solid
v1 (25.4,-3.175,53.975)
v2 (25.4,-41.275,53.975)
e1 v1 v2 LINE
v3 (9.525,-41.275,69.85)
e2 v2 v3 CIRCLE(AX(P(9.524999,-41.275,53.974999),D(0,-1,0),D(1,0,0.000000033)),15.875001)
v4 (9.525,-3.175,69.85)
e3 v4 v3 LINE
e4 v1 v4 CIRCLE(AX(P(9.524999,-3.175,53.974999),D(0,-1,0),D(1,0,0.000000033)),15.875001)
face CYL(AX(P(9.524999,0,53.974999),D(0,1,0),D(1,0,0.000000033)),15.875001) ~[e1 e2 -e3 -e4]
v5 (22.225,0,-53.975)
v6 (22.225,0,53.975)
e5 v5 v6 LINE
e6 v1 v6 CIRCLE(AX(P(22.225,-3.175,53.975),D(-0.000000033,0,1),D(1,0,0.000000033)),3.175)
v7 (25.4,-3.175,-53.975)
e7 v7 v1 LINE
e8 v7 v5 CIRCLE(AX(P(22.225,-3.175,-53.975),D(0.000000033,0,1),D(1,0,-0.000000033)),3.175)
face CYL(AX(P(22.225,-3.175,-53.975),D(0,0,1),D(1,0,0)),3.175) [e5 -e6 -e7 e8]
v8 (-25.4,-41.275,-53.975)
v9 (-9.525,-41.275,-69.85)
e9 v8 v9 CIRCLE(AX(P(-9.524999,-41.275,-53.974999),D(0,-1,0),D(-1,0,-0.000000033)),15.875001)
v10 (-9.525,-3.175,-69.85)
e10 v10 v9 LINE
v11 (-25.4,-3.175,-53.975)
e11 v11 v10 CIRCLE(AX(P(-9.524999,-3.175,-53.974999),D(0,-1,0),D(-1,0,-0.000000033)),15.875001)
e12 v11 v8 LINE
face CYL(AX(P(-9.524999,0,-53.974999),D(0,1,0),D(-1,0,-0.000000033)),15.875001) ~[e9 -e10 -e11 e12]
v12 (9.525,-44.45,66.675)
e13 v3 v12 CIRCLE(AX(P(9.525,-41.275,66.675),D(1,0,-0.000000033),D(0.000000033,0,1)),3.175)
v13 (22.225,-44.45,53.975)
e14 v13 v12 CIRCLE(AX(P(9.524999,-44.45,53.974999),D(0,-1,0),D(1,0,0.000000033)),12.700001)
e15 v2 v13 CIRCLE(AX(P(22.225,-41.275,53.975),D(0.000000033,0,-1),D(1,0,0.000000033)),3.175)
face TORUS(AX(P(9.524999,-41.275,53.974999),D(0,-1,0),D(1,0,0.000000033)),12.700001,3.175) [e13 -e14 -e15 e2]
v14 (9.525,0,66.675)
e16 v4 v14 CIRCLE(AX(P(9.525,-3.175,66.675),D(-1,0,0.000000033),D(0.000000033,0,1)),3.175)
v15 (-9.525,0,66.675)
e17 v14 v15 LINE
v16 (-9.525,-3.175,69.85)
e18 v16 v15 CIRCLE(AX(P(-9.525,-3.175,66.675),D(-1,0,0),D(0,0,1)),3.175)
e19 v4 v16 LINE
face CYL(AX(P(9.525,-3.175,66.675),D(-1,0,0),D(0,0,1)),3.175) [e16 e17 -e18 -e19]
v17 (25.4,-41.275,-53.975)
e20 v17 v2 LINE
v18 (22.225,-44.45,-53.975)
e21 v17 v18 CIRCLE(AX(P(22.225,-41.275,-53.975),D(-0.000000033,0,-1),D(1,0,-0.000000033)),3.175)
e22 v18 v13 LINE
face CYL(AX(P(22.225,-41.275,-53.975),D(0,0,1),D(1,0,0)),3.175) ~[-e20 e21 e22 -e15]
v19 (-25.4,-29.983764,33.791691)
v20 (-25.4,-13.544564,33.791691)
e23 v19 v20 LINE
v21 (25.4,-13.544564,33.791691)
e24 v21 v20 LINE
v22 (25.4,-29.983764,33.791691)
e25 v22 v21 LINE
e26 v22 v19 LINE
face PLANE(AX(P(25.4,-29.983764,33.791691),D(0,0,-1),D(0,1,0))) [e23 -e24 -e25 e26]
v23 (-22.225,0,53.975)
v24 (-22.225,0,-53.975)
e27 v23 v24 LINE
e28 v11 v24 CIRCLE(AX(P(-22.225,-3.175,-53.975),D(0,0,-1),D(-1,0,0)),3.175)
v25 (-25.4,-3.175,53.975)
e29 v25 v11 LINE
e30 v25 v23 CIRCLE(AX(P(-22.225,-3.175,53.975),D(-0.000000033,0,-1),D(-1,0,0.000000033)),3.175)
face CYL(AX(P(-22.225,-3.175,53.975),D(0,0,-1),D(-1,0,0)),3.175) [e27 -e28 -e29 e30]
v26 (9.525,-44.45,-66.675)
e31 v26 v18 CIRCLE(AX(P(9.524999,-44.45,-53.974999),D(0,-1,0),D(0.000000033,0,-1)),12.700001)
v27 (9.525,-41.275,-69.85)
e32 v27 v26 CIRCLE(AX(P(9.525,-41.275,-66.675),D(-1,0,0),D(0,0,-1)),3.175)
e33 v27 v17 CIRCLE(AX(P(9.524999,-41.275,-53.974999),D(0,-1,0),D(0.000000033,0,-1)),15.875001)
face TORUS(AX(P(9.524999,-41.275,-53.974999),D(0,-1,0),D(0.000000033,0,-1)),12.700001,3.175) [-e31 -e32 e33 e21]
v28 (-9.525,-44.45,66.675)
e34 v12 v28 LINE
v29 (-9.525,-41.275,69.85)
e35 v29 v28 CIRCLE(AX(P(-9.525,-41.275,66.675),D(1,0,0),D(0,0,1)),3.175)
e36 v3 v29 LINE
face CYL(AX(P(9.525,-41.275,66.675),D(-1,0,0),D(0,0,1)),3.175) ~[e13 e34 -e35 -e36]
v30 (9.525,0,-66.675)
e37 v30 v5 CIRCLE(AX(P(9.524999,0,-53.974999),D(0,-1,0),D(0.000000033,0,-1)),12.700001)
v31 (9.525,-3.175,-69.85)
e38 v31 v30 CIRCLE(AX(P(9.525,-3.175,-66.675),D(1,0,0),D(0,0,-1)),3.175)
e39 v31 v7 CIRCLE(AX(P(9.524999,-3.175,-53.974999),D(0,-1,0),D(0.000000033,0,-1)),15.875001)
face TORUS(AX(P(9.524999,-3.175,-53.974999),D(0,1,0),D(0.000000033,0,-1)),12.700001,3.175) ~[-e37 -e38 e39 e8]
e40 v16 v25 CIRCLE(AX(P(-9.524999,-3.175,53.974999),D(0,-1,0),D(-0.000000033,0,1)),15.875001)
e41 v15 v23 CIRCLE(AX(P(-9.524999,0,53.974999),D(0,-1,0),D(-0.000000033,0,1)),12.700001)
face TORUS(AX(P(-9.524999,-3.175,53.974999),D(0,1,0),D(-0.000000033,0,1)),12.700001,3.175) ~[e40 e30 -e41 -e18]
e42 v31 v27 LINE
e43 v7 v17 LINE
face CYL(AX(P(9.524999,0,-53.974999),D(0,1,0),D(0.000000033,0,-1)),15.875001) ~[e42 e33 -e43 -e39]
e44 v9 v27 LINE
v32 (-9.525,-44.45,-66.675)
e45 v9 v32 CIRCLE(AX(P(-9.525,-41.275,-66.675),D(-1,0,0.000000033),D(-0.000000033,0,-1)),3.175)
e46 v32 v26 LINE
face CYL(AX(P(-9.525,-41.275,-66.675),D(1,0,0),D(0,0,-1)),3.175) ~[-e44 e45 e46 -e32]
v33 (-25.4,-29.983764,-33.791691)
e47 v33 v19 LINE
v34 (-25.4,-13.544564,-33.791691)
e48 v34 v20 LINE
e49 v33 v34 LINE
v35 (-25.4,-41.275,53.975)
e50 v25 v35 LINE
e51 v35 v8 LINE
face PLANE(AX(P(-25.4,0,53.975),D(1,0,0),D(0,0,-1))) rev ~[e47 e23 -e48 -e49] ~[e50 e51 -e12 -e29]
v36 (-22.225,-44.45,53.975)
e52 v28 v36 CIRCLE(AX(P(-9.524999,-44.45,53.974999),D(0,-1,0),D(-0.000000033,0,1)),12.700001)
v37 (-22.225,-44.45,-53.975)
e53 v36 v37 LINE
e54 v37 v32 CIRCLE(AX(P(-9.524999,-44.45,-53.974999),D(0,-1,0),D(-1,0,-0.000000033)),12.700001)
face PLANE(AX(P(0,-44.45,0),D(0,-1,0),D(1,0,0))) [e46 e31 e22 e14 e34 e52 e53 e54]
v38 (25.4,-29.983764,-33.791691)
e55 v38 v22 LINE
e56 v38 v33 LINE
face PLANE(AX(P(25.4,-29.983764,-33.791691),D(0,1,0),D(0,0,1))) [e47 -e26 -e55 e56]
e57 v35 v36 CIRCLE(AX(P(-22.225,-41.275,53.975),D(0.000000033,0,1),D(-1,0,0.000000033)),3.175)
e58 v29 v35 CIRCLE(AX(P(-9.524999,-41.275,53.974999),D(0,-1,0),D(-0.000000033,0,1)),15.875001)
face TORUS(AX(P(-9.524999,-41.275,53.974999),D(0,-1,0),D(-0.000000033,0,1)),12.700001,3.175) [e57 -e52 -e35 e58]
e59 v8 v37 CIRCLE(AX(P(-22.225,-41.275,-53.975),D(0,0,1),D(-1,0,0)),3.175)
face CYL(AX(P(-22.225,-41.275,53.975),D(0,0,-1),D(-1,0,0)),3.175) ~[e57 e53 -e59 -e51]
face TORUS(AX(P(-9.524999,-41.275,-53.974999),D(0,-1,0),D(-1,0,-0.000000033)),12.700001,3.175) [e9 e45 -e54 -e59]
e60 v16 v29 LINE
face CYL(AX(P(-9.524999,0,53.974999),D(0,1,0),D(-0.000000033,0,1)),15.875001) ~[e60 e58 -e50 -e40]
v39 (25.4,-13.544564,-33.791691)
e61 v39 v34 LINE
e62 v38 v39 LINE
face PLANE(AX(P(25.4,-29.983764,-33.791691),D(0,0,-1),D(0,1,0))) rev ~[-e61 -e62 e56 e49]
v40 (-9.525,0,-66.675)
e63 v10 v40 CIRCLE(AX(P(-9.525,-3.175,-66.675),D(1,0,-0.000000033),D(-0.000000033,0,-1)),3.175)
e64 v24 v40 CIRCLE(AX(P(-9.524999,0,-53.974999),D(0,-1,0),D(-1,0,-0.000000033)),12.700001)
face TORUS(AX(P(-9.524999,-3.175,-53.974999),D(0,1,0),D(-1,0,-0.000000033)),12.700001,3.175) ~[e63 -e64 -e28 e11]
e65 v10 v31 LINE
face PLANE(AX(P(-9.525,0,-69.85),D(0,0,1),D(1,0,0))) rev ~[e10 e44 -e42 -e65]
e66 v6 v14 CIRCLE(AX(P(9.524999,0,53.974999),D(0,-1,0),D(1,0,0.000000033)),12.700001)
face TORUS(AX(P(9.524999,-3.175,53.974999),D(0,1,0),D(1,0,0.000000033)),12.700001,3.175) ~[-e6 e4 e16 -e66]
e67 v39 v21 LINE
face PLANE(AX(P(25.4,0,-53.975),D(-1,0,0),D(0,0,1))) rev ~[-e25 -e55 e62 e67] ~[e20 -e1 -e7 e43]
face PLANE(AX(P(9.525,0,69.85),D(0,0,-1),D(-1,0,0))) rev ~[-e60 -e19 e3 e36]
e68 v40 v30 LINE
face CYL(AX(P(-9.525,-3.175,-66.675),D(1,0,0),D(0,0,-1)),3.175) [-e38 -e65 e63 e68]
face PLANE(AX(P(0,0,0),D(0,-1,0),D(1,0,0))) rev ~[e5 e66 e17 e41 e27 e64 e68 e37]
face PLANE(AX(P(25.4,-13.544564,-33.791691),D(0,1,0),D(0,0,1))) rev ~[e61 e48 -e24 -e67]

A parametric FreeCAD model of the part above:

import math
import FreeCAD as App
import Part
import Sketcher
from FreeCAD import Vector
Q = App.Units.Quantity


def edges_at(feature, points):
    """Names of the edges that pass closest to the given points."""
    edges = feature.Shape.Edges
    near = lambda p: min(range(len(edges)), key=lambda i: edges[i].distToShape(Part.Vertex(*p))[0])
    return sorted({f"Edge{near(p) + 1}" for p in points})

doc = App.newDocument("Part")
params = doc.addObject("Spreadsheet::Sheet", "Params")
for row, (alias, value) in enumerate([
    ("sketch1_radius", "0.625 in"),
    ("sketch1_height", "4.25 in"),
    ("pad1_length", "1.75 in"),
    ("fillet_radius", "0.125 in"),
], start=1):
    params.set(f"A{row}", alias)
    params.set(f"B{row}", "=" + value)
    params.setAlias(f"B{row}", alias)

body = doc.addObject("PartDesign::Body", "Body")

# Sketch on XZ plane
sketch1 = body.newObject("Sketcher::SketchObject", "Sketch")
sketch1.AttachmentSupport = (doc.getObject("XZ_Plane"), [""])
sketch1.MapMode = "FlatFace"
sketch1.addGeometry(Part.ArcOfCircle(Part.Circle(Vector(10, 54, 0), Vector(0, 0, 1), 16), math.radians(0), math.radians(90)), False)
sketch1.addGeometry(Part.LineSegment(Vector(10, 70, 0), Vector(-10, 70, 0)), False)
sketch1.addGeometry(Part.ArcOfCircle(Part.Circle(Vector(-10, 54, 0), Vector(0, 0, 1), 16), math.radians(90), math.radians(180)), False)
sketch1.addGeometry(Part.LineSegment(Vector(-25, 54, 0), Vector(-25, -54, 0)), False)
sketch1.addGeometry(Part.ArcOfCircle(Part.Circle(Vector(-10, -54, 0), Vector(0, 0, 1), 16), math.radians(-180), math.radians(-90)), False)
sketch1.addGeometry(Part.LineSegment(Vector(-10, -70, 0), Vector(10, -70, 0)), False)
sketch1.addGeometry(Part.ArcOfCircle(Part.Circle(Vector(10, -54, 0), Vector(0, 0, 1), 16), math.radians(-90), math.radians(0)), False)
sketch1.addGeometry(Part.LineSegment(Vector(25, -54, 0), Vector(25, 54, 0)), False)
sketch1.addConstraint(Sketcher.Constraint("Tangent", 0, 2, 1, 1))
sketch1.addConstraint(Sketcher.Constraint("Tangent", 1, 2, 2, 1))
sketch1.addConstraint(Sketcher.Constraint("Tangent", 2, 2, 3, 1))
sketch1.addConstraint(Sketcher.Constraint("Tangent", 3, 2, 4, 1))
sketch1.addConstraint(Sketcher.Constraint("Tangent", 4, 2, 5, 1))
sketch1.addConstraint(Sketcher.Constraint("Tangent", 5, 2, 6, 1))
sketch1.addConstraint(Sketcher.Constraint("Tangent", 6, 2, 7, 1))
sketch1.addConstraint(Sketcher.Constraint("Tangent", 7, 2, 0, 1))
sketch1.addConstraint(Sketcher.Constraint("Horizontal", 1))
sketch1.addConstraint(Sketcher.Constraint("Vertical", 3))
sketch1.addConstraint(Sketcher.Constraint("Horizontal", 5))
sketch1.addConstraint(Sketcher.Constraint("Vertical", 7))
sketch1.addConstraint(Sketcher.Constraint("Equal", 0, 2))
sketch1.addConstraint(Sketcher.Constraint("Equal", 2, 4))
sketch1.addConstraint(Sketcher.Constraint("Equal", 4, 6))
sketch1.addConstraint(Sketcher.Constraint("Symmetric", 0, 3, 4, 3, -1, 1))
sketch1.addConstraint(Sketcher.Constraint("DistanceX", 2, 2, -1, 1, Q("1 in")))
sketch1.addConstraint(Sketcher.Constraint("Radius", 0, Q("0.625 in")))
sketch1.addConstraint(Sketcher.Constraint("DistanceY", 3, 2, 3, 1, Q("4.25 in")))
sketch1.setExpression("Constraints[17]", "Params.sketch1_radius")
sketch1.setExpression("Constraints[18]", "Params.sketch1_height")
pad1 = body.newObject("PartDesign::Pad", "Pad")
pad1.Profile = sketch1
pad1.setExpression("Length", "Params.pad1_length")
doc.recompute()

fillet = body.newObject("PartDesign::Fillet", "Fillet")
fillet.Base = (pad1, edges_at(pad1, [(20.75, -44.45, 65.2), (20.75, 0, 65.2)]))
fillet.setExpression("Radius", "Params.fillet_radius")

# Sketch on YZ plane
sketch2 = body.newObject("Sketcher::SketchObject", "Sketch001")
sketch2.AttachmentSupport = (doc.getObject("YZ_Plane"), [""])
sketch2.MapMode = "FlatFace"
sketch2.AttachmentOffset = App.Placement(Vector(0, 0, 1 * 25.4), App.Rotation())
sketch2.addGeometry(Part.LineSegment(Vector(-30, 34, 0), Vector(-30, -34, 0)), False)
sketch2.addGeometry(Part.LineSegment(Vector(-30, -34, 0), Vector(-14, -34, 0)), False)
sketch2.addGeometry(Part.LineSegment(Vector(-14, -34, 0), Vector(-14, 34, 0)), False)
sketch2.addGeometry(Part.LineSegment(Vector(-14, 34, 0), Vector(-30, 34, 0)), False)
sketch2.addConstraint(Sketcher.Constraint("Coincident", 0, 2, 1, 1))
sketch2.addConstraint(Sketcher.Constraint("Coincident", 1, 2, 2, 1))
sketch2.addConstraint(Sketcher.Constraint("Coincident", 2, 2, 3, 1))
sketch2.addConstraint(Sketcher.Constraint("Coincident", 3, 2, 0, 1))
sketch2.addConstraint(Sketcher.Constraint("Vertical", 0))
sketch2.addConstraint(Sketcher.Constraint("Horizontal", 1))
sketch2.addConstraint(Sketcher.Constraint("Vertical", 2))
sketch2.addConstraint(Sketcher.Constraint("Horizontal", 3))
sketch2.addConstraint(Sketcher.Constraint("DistanceX", 1, 1, 1, 2, 16.439201))
sketch2.addConstraint(Sketcher.Constraint("DistanceY", 0, 2, 0, 1, 67.583382))
sketch2.addConstraint(Sketcher.Constraint("DistanceY", 0, 2, -1, 1, 33.791691))
sketch2.addConstraint(Sketcher.Constraint("DistanceX", 0, 2, -1, 1, 29.983764))
pocket1 = body.newObject("PartDesign::Pocket", "Pocket")
pocket1.Profile = sketch2
pocket1.Type = "ThroughAll"

doc.recompute()
